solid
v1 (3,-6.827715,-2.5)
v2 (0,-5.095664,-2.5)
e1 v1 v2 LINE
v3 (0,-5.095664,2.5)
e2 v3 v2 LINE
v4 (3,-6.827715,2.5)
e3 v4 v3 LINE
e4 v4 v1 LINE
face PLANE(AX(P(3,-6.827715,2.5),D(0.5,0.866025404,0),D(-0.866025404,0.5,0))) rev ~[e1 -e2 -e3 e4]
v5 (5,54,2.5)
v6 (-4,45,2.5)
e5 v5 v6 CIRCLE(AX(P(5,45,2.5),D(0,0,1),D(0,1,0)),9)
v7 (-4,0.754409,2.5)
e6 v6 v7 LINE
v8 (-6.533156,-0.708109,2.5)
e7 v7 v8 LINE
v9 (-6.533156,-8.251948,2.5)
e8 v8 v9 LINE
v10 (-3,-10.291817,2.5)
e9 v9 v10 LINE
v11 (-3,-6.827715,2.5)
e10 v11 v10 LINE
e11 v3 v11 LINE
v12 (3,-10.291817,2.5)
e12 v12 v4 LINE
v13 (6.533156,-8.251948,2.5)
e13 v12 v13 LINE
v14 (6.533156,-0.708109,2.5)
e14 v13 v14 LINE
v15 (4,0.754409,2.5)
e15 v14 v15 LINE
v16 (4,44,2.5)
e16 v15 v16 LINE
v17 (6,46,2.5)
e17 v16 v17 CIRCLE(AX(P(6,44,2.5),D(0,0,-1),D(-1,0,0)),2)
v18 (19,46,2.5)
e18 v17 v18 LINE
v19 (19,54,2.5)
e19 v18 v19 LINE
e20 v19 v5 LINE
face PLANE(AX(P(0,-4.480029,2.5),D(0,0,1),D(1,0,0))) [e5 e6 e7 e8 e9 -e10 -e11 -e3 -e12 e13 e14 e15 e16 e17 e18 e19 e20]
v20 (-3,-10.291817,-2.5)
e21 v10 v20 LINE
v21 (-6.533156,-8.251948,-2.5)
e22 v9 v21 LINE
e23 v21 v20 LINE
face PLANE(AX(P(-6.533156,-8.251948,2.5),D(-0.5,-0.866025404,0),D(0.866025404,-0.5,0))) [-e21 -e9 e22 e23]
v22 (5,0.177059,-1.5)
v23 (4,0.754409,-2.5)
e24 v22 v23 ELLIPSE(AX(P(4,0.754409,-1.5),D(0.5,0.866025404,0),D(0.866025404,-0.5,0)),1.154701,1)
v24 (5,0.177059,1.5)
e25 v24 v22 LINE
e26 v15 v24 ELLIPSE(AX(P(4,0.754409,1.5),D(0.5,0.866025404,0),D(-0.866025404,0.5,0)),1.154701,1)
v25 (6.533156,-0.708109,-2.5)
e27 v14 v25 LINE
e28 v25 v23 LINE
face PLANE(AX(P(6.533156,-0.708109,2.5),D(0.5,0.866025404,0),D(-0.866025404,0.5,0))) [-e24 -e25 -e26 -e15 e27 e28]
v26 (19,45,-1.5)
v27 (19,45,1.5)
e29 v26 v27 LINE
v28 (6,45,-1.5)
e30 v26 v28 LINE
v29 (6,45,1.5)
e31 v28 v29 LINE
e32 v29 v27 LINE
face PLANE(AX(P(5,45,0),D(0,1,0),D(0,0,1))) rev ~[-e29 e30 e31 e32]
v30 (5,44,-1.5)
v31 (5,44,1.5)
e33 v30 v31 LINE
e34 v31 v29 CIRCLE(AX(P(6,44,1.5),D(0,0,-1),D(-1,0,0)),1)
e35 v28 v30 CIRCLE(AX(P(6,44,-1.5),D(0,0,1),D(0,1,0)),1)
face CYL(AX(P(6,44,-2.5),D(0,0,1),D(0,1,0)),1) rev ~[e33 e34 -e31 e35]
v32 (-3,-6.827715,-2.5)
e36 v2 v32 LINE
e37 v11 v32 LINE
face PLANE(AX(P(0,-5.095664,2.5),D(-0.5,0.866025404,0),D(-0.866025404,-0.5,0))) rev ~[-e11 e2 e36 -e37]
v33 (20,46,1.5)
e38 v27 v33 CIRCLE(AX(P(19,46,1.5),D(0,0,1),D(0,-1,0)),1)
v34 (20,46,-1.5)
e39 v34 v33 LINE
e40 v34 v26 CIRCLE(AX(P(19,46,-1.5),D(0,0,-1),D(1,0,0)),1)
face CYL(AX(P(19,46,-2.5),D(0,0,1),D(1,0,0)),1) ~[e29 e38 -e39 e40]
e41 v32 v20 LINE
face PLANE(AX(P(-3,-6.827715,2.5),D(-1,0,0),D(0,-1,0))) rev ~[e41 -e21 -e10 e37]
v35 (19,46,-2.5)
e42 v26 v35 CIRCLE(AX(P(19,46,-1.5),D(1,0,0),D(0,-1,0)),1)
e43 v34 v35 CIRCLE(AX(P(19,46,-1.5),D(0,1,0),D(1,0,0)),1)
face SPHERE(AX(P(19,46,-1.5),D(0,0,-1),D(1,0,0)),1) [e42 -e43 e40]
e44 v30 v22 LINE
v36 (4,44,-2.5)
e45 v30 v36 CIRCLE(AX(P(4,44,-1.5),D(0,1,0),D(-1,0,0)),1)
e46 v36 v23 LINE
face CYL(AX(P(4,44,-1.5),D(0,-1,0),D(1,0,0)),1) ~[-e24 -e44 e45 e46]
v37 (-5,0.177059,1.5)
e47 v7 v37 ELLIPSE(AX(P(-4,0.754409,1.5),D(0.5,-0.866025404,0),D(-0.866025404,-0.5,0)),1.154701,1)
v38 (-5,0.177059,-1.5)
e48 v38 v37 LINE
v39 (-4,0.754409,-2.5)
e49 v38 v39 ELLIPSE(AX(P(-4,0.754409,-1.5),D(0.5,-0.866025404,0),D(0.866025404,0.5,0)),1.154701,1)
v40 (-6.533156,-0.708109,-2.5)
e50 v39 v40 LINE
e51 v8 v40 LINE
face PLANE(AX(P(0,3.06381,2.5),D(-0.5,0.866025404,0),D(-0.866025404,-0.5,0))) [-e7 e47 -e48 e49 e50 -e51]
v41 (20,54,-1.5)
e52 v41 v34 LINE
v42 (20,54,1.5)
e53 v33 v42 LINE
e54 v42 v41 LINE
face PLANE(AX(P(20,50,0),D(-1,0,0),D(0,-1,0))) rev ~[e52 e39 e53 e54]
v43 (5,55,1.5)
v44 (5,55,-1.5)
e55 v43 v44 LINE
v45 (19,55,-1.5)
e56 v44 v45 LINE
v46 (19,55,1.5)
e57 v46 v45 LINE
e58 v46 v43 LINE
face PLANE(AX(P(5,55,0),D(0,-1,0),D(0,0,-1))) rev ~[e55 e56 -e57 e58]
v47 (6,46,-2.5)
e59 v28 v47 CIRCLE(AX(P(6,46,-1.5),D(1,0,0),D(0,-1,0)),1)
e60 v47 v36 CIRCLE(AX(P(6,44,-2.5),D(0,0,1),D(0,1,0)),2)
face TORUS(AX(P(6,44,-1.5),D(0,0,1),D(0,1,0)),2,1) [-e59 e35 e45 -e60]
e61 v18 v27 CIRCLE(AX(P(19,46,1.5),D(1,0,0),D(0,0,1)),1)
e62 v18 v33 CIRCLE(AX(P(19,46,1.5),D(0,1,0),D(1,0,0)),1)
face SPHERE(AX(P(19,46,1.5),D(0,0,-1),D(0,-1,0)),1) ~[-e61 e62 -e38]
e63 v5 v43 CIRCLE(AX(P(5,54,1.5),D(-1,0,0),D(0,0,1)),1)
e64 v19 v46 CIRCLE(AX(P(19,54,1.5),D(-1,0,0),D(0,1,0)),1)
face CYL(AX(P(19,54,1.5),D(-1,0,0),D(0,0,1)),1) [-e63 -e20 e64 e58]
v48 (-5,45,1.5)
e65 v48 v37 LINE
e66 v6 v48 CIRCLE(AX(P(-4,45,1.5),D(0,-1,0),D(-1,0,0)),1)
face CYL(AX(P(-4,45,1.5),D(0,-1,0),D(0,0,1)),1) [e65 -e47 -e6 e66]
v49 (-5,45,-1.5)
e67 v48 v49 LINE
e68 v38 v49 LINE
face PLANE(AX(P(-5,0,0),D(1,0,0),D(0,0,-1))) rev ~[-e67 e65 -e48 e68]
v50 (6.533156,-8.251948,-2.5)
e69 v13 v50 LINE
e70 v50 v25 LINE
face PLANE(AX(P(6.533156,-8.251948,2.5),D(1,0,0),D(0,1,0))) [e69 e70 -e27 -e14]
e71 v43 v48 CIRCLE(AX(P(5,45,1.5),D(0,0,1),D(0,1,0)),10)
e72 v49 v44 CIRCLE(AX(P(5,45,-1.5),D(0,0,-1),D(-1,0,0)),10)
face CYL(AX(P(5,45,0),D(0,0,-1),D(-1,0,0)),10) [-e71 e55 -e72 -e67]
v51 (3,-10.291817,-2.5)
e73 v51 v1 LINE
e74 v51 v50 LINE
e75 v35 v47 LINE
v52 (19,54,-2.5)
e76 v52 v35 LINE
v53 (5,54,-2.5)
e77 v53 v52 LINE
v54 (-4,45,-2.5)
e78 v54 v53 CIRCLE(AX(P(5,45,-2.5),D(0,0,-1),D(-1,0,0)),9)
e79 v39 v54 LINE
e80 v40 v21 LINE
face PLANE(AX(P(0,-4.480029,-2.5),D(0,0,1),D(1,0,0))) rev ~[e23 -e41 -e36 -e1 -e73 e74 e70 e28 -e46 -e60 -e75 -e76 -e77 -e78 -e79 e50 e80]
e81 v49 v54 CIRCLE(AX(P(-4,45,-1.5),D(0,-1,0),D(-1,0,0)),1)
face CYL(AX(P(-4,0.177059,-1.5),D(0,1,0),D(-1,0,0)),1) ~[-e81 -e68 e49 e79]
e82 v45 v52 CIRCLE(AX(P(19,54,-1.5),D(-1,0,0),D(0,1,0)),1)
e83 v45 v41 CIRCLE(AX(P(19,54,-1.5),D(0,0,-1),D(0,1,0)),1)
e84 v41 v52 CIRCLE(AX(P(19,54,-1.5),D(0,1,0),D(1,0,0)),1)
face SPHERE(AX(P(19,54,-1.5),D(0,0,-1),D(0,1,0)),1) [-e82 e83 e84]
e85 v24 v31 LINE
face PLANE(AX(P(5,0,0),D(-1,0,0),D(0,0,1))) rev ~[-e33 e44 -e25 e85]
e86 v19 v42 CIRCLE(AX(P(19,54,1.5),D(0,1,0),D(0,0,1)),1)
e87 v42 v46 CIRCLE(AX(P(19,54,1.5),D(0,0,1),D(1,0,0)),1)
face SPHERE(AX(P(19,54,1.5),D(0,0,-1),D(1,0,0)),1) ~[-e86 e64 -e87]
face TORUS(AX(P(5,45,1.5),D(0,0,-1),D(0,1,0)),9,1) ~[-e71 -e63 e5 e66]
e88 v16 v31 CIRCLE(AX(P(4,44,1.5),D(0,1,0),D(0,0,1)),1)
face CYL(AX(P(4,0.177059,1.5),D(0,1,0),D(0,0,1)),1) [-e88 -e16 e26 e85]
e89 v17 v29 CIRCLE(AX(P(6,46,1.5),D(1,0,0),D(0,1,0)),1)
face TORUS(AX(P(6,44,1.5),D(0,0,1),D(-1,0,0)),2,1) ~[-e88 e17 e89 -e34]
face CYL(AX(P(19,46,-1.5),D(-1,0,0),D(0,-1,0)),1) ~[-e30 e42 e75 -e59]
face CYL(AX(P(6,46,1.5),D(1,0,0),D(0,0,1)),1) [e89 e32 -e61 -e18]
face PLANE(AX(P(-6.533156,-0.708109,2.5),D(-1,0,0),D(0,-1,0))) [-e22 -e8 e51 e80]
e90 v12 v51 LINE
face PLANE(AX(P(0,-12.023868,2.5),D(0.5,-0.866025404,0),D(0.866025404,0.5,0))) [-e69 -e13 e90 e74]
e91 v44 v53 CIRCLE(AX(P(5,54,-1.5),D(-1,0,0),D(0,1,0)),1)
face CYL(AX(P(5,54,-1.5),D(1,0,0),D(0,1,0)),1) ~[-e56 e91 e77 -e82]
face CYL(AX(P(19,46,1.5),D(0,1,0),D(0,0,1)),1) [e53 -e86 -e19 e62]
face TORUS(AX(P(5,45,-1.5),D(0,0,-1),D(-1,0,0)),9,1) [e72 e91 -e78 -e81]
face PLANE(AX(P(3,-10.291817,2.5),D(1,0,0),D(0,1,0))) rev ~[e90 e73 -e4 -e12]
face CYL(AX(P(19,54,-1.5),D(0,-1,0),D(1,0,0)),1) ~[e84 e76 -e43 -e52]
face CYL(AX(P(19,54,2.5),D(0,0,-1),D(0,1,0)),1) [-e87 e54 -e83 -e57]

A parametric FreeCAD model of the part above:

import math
import FreeCAD as App
import Part
import Sketcher
from FreeCAD import Vector
Q = App.Units.Quantity


def edges_at(feature, points):
    """Names of the edges that pass closest to the given points."""
    edges = feature.Shape.Edges
    near = lambda p: min(range(len(edges)), key=lambda i: edges[i].distToShape(Part.Vertex(*p))[0])
    return sorted({f"Edge{near(p) + 1}" for p in points})


def add_polygon(sketch, points):
    """Adds a closed chain of lines whose ends are joined by coincident constraints."""
    first, n = sketch.GeometryCount, len(points)
    for a, b in zip(points, points[1:] + points[:1]):
        sketch.addGeometry(Part.LineSegment(App.Vector(*a, 0), App.Vector(*b, 0)), False)
    for i in range(n):
        sketch.addConstraint(Sketcher.Constraint("Coincident", first + i, 2, first + (i + 1) % n, 1))

doc = App.newDocument("Part")
body = doc.addObject("PartDesign::Body", "Body")

# Sketch on XZ plane
sketch1 = doc.addObject("Sketcher::SketchObject", "Sketch")
body.addObject(sketch1)
sketch1.AttachmentSupport = (doc.XZ_Plane, [""])
sketch1.MapMode = "FlatFace"
add_polygon(sketch1, [(-5, 2), (-5, -2), (5, -2), (5, 2)])  # lines 0-3
sketch1.addConstraint([
    Sketcher.Constraint("Vertical", 0),
    Sketcher.Constraint("Horizontal", 1),
    Sketcher.Constraint("Vertical", 2),
    Sketcher.Constraint("Horizontal", 3),
    Sketcher.Constraint("Symmetric", 0, 2, 2, 2, -1, 1),
    Sketcher.Constraint("DistanceX", 1, 1, 1, 2, 10.0),
    Sketcher.Constraint("DistanceY", 0, 2, 0, 1, 5.0),
])

# Sketch on XY plane
sketch2 = doc.addObject("Sketcher::SketchObject", "Sketch001")
body.addObject(sketch2)
sketch2.AttachmentSupport = (doc.XY_Plane, [""])
sketch2.MapMode = "FlatFace"
sketch2.addGeometry([
    Part.LineSegment(Vector(0, 0, 0), Vector(0, 45, 0)),
    Part.ArcOfCircle(Part.Circle(Vector(5, 45, 0), Vector(0, 0, 1), 5), math.radians(90), math.radians(180)),
    Part.LineSegment(Vector(5, 50, 0), Vector(20, 50, 0)),
], False)
sketch2.addConstraint([
    Sketcher.Constraint("Tangent", 0, 2, 1, 2),
    Sketcher.Constraint("Tangent", 1, 1, 2, 1),
    Sketcher.Constraint("Vertical", 0),
    Sketcher.Constraint("Horizontal", 2),
    Sketcher.Constraint("Coincident", 0, 1, -1, 1),
    Sketcher.Constraint("Radius", 1, 5.0),
    Sketcher.Constraint("DistanceX", 2, 1, 2, 2, 15.0),
    Sketcher.Constraint("DistanceY", 0, 1, 0, 2, 45.0),
])
doc.recompute()

additivepipe = doc.addObject("PartDesign::AdditivePipe", "AdditivePipe")
body.addObject(additivepipe)
additivepipe.Profile = sketch1
additivepipe.Spine = (sketch2, ["Edge1", "Edge2", "Edge3"])

# Sketch on XY plane
sketch3 = doc.addObject("Sketcher::SketchObject", "Sketch002")
body.addObject(sketch3)
sketch3.AttachmentSupport = (doc.XY_Plane, [""])
sketch3.MapMode = "FlatFace"
sketch3.AttachmentOffset = App.Placement(Vector(0, 0, 2.5), App.Rotation())
add_polygon(sketch3, [(0, -12), (7, -8), (7, -1), (0, 3), (-7, -1), (-7, -8)])  # lines 0-5
sketch3.addConstraint([
    Sketcher.Constraint("Vertical", 1),
    Sketcher.Constraint("Vertical", 4),
    Sketcher.Constraint("Symmetric", 1, 2, 3, 2, -2),
    Sketcher.Constraint("PointOnObject", 2, 2, -2),
    Sketcher.Constraint("PointOnObject", 5, 2, -2),
    Sketcher.Constraint("Parallel", 0, 3),
    Sketcher.Constraint("Parallel", 2, 5),
    Sketcher.Constraint("Angle", 0, Q("30 deg")),
    Sketcher.Constraint("DistanceY", 1, 1, 1, 2, 7.543839),
    Sketcher.Constraint("Distance", 0, 7.543839),
    Sketcher.Constraint("DistanceY", 0, 2, -1, 1, 8.251948),
])
pad1 = doc.addObject("PartDesign::Pad", "Pad")
body.addObject(pad1)
pad1.Profile = sketch3
pad1.Length = 5
pad1.Reversed = True

# Sketch on XY plane
sketch4 = doc.addObject("Sketcher::SketchObject", "Sketch003")
body.addObject(sketch4)
sketch4.AttachmentSupport = (doc.XY_Plane, [""])
sketch4.MapMode = "FlatFace"
sketch4.AttachmentOffset = App.Placement(Vector(0, 0, 2.5), App.Rotation())
add_polygon(sketch4, [(0, -12), (3, -10.3), (3, -6.8), (0, -5.1), (-3, -6.8), (-3, -10.3)])  # lines 0-5
sketch4.addConstraint([
    Sketcher.Constraint("Vertical", 1),
    Sketcher.Constraint("Vertical", 4),
    Sketcher.Constraint("Symmetric", 1, 2, 3, 2, -2),
    Sketcher.Constraint("PointOnObject", 2, 2, -2),
    Sketcher.Constraint("PointOnObject", 5, 2, -2),
    Sketcher.Constraint("Parallel", 0, 3),
    Sketcher.Constraint("Parallel", 2, 5),
    Sketcher.Constraint("Angle", 0, Q("30 deg")),
    Sketcher.Constraint("DistanceX", -1, 1, 0, 2, 3.0),
    Sketcher.Constraint("DistanceY", 1, 1, 1, 2, 3.464102),
    Sketcher.Constraint("DistanceY", 0, 2, -1, 1, 10.291817),
])
pocket1 = doc.addObject("PartDesign::Pocket", "Pocket")
body.addObject(pocket1)
pocket1.Profile = sketch4
pocket1.Type = "ThroughAll"
doc.recompute()

fillet = doc.addObject("PartDesign::Fillet", "Fillet")
body.addObject(fillet)
fillet.Base = (pocket1, edges_at(pocket1, [(20, 55, 0), (20, 45, 0), (5, 45, 0)]))
fillet.Radius = 1
doc.recompute()

fillet2 = doc.addObject("PartDesign::Fillet", "Fillet001")
body.addObject(fillet2)
fillet2.Base = (fillet, edges_at(fillet, [(20, 50, 2.5), (20, 50, -2.5)]))
fillet2.Radius = 1

doc.recompute()
